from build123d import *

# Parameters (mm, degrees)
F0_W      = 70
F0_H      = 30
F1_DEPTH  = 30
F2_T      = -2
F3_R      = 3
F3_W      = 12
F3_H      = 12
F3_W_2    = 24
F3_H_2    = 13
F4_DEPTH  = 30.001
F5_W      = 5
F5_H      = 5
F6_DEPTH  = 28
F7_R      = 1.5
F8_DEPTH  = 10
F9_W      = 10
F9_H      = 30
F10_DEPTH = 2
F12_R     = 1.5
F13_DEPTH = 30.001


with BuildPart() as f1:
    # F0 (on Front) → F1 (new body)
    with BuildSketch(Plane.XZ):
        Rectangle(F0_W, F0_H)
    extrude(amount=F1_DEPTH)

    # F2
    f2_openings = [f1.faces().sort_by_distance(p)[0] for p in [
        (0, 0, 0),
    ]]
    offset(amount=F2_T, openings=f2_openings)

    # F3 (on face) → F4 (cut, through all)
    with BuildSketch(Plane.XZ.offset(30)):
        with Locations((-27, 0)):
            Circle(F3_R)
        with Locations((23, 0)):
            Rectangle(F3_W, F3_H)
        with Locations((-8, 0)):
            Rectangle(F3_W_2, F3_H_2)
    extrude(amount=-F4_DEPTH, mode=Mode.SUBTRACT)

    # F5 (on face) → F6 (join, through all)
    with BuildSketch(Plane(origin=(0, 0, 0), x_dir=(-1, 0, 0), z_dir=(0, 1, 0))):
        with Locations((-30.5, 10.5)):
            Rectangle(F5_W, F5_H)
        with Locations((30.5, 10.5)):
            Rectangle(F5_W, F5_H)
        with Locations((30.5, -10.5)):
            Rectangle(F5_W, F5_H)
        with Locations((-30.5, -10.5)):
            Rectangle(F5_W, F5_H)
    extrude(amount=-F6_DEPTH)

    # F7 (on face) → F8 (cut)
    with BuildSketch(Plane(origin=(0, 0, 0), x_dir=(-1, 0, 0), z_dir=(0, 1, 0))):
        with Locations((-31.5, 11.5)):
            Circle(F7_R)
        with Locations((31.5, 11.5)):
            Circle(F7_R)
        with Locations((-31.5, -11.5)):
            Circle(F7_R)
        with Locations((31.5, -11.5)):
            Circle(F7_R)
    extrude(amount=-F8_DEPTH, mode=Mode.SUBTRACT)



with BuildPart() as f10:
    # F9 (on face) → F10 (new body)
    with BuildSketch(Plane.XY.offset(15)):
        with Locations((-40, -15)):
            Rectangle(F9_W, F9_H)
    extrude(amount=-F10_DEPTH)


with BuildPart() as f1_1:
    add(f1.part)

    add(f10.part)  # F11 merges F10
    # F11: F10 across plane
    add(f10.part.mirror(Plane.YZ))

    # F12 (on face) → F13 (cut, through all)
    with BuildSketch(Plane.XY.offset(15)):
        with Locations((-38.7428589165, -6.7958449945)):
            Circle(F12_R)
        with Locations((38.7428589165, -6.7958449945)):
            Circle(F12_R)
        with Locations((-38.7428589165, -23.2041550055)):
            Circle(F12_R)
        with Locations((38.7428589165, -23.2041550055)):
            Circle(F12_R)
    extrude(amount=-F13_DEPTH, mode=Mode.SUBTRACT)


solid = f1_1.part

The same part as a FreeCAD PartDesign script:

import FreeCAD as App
import Part
import Sketcher

V = App.Vector
Q = App.Units.Quantity


def faces_at(feature, points):
    """Names of the faces that lie closest to the given points."""
    faces = feature.Shape.Faces
    near = lambda p: min(range(len(faces)), key=lambda i: faces[i].distToShape(Part.Vertex(*p))[0])
    return sorted({f"Face{near(p) + 1}" for p in points})

doc = App.newDocument("Part")
body = doc.addObject("PartDesign::Body", "Body")

sketch1 = body.newObject("Sketcher::SketchObject", "Sketch")
sketch1.AttachmentSupport = (doc.getObject("XZ_Plane"), [""])
sketch1.MapMode = "FlatFace"
sketch1.addGeometry(Part.LineSegment(V(-35, 15, 0), V(-35, -15, 0)), False)
sketch1.addGeometry(Part.LineSegment(V(-35, -15, 0), V(35, -15, 0)), False)
sketch1.addGeometry(Part.LineSegment(V(35, -15, 0), V(35, 15, 0)), False)
sketch1.addGeometry(Part.LineSegment(V(35, 15, 0), V(-35, 15, 0)), False)
sketch1.addConstraint(Sketcher.Constraint("Coincident", 0, 2, 1, 1))
sketch1.addConstraint(Sketcher.Constraint("Coincident", 1, 2, 2, 1))
sketch1.addConstraint(Sketcher.Constraint("Coincident", 2, 2, 3, 1))
sketch1.addConstraint(Sketcher.Constraint("Coincident", 3, 2, 0, 1))
sketch1.addConstraint(Sketcher.Constraint("Vertical", 0))
sketch1.addConstraint(Sketcher.Constraint("Horizontal", 1))
sketch1.addConstraint(Sketcher.Constraint("Vertical", 2))
sketch1.addConstraint(Sketcher.Constraint("Horizontal", 3))
sketch1.addConstraint(Sketcher.Constraint("Symmetric", 0, 2, 2, 2, -1, 1))
sketch1.addConstraint(Sketcher.Constraint("DistanceX", 1, 1, 1, 2, Q("70 mm")))
sketch1.addConstraint(Sketcher.Constraint("DistanceY", 0, 2, 0, 1, Q("30 mm")))
pad1 = body.newObject("PartDesign::Pad", "Pad")
pad1.Profile = sketch1
pad1.Length = 30
doc.recompute()

thickness = body.newObject("PartDesign::Thickness", "Thickness")
thickness.Base = (pad1, faces_at(pad1, [(0, 0, 0)]))
thickness.Value = 2
thickness.Reversed = True
thickness.Join = "Arc"

sketch2 = body.newObject("Sketcher::SketchObject", "Sketch001")
sketch2.AttachmentSupport = (doc.getObject("XZ_Plane"), [""])
sketch2.MapMode = "FlatFace"
sketch2.AttachmentOffset = App.Placement(V(0, 0, 30), App.Rotation())
sketch2.addGeometry(Part.Circle(V(-27, 0, 0), V(0, 0, 1), 3), False)
sketch2.addGeometry(Part.LineSegment(V(17, 6, 0), V(17, -6, 0)), False)
sketch2.addGeometry(Part.LineSegment(V(17, -6, 0), V(29, -6, 0)), False)
sketch2.addGeometry(Part.LineSegment(V(29, -6, 0), V(29, 6, 0)), False)
sketch2.addGeometry(Part.LineSegment(V(29, 6, 0), V(17, 6, 0)), False)
sketch2.addGeometry(Part.LineSegment(V(-20, 6.5, 0), V(-20, -6.5, 0)), False)
sketch2.addGeometry(Part.LineSegment(V(-20, -6.5, 0), V(4, -6.5, 0)), False)
sketch2.addGeometry(Part.LineSegment(V(4, -6.5, 0), V(4, 6.5, 0)), False)
sketch2.addGeometry(Part.LineSegment(V(4, 6.5, 0), V(-20, 6.5, 0)), False)
sketch2.addConstraint(Sketcher.Constraint("Coincident", 1, 2, 2, 1))
sketch2.addConstraint(Sketcher.Constraint("Coincident", 2, 2, 3, 1))
sketch2.addConstraint(Sketcher.Constraint("Coincident", 3, 2, 4, 1))
sketch2.addConstraint(Sketcher.Constraint("Coincident", 4, 2, 1, 1))
sketch2.addConstraint(Sketcher.Constraint("Coincident", 5, 2, 6, 1))
sketch2.addConstraint(Sketcher.Constraint("Coincident", 6, 2, 7, 1))
sketch2.addConstraint(Sketcher.Constraint("Coincident", 7, 2, 8, 1))
sketch2.addConstraint(Sketcher.Constraint("Coincident", 8, 2, 5, 1))
sketch2.addConstraint(Sketcher.Constraint("Vertical", 1))
sketch2.addConstraint(Sketcher.Constraint("Horizontal", 2))
sketch2.addConstraint(Sketcher.Constraint("Vertical", 3))
sketch2.addConstraint(Sketcher.Constraint("Horizontal", 4))
sketch2.addConstraint(Sketcher.Constraint("Vertical", 5))
sketch2.addConstraint(Sketcher.Constraint("Horizontal", 6))
sketch2.addConstraint(Sketcher.Constraint("Vertical", 7))
sketch2.addConstraint(Sketcher.Constraint("Horizontal", 8))
sketch2.addConstraint(Sketcher.Constraint("PointOnObject", 0, 3, -1))
sketch2.addConstraint(Sketcher.Constraint("Equal", 4, 1))
sketch2.addConstraint(Sketcher.Constraint("Diameter", 0, Q("6 mm")))
sketch2.addConstraint(Sketcher.Constraint("DistanceX", 2, 1, 2, 2, Q("12 mm")))
sketch2.addConstraint(Sketcher.Constraint("DistanceX", 6, 1, 6, 2, Q("24 mm")))
sketch2.addConstraint(Sketcher.Constraint("DistanceY", 5, 2, 5, 1, Q("13 mm")))
sketch2.addConstraint(Sketcher.Constraint("DistanceX", 0, 3, -1, 1, Q("27 mm")))
sketch2.addConstraint(Sketcher.Constraint("DistanceX", -1, 1, 1, 2, Q("17 mm")))
sketch2.addConstraint(Sketcher.Constraint("DistanceY", 1, 2, -1, 1, Q("6 mm")))
sketch2.addConstraint(Sketcher.Constraint("DistanceX", 5, 2, -1, 1, Q("20 mm")))
sketch2.addConstraint(Sketcher.Constraint("DistanceY", 5, 2, -1, 1, Q("6.5 mm")))
pocket1 = body.newObject("PartDesign::Pocket", "Pocket")
pocket1.Profile = sketch2
pocket1.Type = "ThroughAll"

sketch3 = body.newObject("Sketcher::SketchObject", "Sketch002")
sketch3.AttachmentSupport = (doc.getObject("XZ_Plane"), [""])
sketch3.MapMode = "FlatFace"
sketch3.addGeometry(Part.LineSegment(V(33, 13, 0), V(33, 8, 0)), False)
sketch3.addGeometry(Part.LineSegment(V(33, 8, 0), V(28, 8, 0)), False)
sketch3.addGeometry(Part.LineSegment(V(28, 8, 0), V(28, 13, 0)), False)
sketch3.addGeometry(Part.LineSegment(V(28, 13, 0), V(33, 13, 0)), False)
sketch3.addGeometry(Part.LineSegment(V(-28, 13, 0), V(-28, 8, 0)), False)
sketch3.addGeometry(Part.LineSegment(V(-28, 8, 0), V(-33, 8, 0)), False)
sketch3.addGeometry(Part.LineSegment(V(-33, 8, 0), V(-33, 13, 0)), False)
sketch3.addGeometry(Part.LineSegment(V(-33, 13, 0), V(-28, 13, 0)), False)
sketch3.addGeometry(Part.LineSegment(V(-28, -8, 0), V(-28, -13, 0)), False)
sketch3.addGeometry(Part.LineSegment(V(-28, -13, 0), V(-33, -13, 0)), False)
sketch3.addGeometry(Part.LineSegment(V(-33, -13, 0), V(-33, -8, 0)), False)
sketch3.addGeometry(Part.LineSegment(V(-33, -8, 0), V(-28, -8, 0)), False)
sketch3.addGeometry(Part.LineSegment(V(33, -8, 0), V(33, -13, 0)), False)
sketch3.addGeometry(Part.LineSegment(V(33, -13, 0), V(28, -13, 0)), False)
sketch3.addGeometry(Part.LineSegment(V(28, -13, 0), V(28, -8, 0)), False)
sketch3.addGeometry(Part.LineSegment(V(28, -8, 0), V(33, -8, 0)), False)
sketch3.addConstraint(Sketcher.Constraint("Coincident", 0, 2, 1, 1))
sketch3.addConstraint(Sketcher.Constraint("Coincident", 1, 2, 2, 1))
sketch3.addConstraint(Sketcher.Constraint("Coincident", 2, 2, 3, 1))
sketch3.addConstraint(Sketcher.Constraint("Coincident", 3, 2, 0, 1))
sketch3.addConstraint(Sketcher.Constraint("Coincident", 4, 2, 5, 1))
sketch3.addConstraint(Sketcher.Constraint("Coincident", 5, 2, 6, 1))
sketch3.addConstraint(Sketcher.Constraint("Coincident", 6, 2, 7, 1))
sketch3.addConstraint(Sketcher.Constraint("Coincident", 7, 2, 4, 1))
sketch3.addConstraint(Sketcher.Constraint("Coincident", 8, 2, 9, 1))
sketch3.addConstraint(Sketcher.Constraint("Coincident", 9, 2, 10, 1))
sketch3.addConstraint(Sketcher.Constraint("Coincident", 10, 2, 11, 1))
sketch3.addConstraint(Sketcher.Constraint("Coincident", 11, 2, 8, 1))
sketch3.addConstraint(Sketcher.Constraint("Coincident", 12, 2, 13, 1))
sketch3.addConstraint(Sketcher.Constraint("Coincident", 13, 2, 14, 1))
sketch3.addConstraint(Sketcher.Constraint("Coincident", 14, 2, 15, 1))
sketch3.addConstraint(Sketcher.Constraint("Coincident", 15, 2, 12, 1))
sketch3.addConstraint(Sketcher.Constraint("Vertical", 0))
sketch3.addConstraint(Sketcher.Constraint("Horizontal", 1))
sketch3.addConstraint(Sketcher.Constraint("Vertical", 2))
sketch3.addConstraint(Sketcher.Constraint("Horizontal", 3))
sketch3.addConstraint(Sketcher.Constraint("Vertical", 4))
sketch3.addConstraint(Sketcher.Constraint("Horizontal", 5))
sketch3.addConstraint(Sketcher.Constraint("Vertical", 6))
sketch3.addConstraint(Sketcher.Constraint("Horizontal", 7))
sketch3.addConstraint(Sketcher.Constraint("Vertical", 8))
sketch3.addConstraint(Sketcher.Constraint("Horizontal", 9))
sketch3.addConstraint(Sketcher.Constraint("Vertical", 10))
sketch3.addConstraint(Sketcher.Constraint("Horizontal", 11))
sketch3.addConstraint(Sketcher.Constraint("Vertical", 12))
sketch3.addConstraint(Sketcher.Constraint("Horizontal", 13))
sketch3.addConstraint(Sketcher.Constraint("Vertical", 14))
sketch3.addConstraint(Sketcher.Constraint("Horizontal", 15))
sketch3.addConstraint(Sketcher.Constraint("Symmetric", 2, 2, 8, 2, -1, 1))
sketch3.addConstraint(Sketcher.Constraint("Symmetric", 0, 2, 10, 2, -1, 1))
sketch3.addConstraint(Sketcher.Constraint("Symmetric", 6, 2, 12, 2, -1, 1))
sketch3.addConstraint(Sketcher.Constraint("Symmetric", 4, 2, 14, 2, -1, 1))
sketch3.addConstraint(Sketcher.Constraint("Symmetric", 1, 2, 4, 2, -2))
sketch3.addConstraint(Sketcher.Constraint("Symmetric", 3, 2, 6, 2, -2))
sketch3.addConstraint(Sketcher.Constraint("Equal", 15, 0))
sketch3.addConstraint(Sketcher.Constraint("DistanceX", 1, 2, 1, 1, Q("5 mm")))
sketch3.addConstraint(Sketcher.Constraint("DistanceX", -1, 1, 0, 2, Q("33 mm")))
sketch3.addConstraint(Sketcher.Constraint("DistanceY", -1, 1, 0, 2, Q("8 mm")))
pad2 = body.newObject("PartDesign::Pad", "Pad001")
pad2.Profile = sketch3
pad2.Length = 28

sketch4 = body.newObject("Sketcher::SketchObject", "Sketch003")
sketch4.AttachmentSupport = (doc.getObject("XZ_Plane"), [""])
sketch4.MapMode = "FlatFace"
sketch4.addGeometry(Part.Circle(V(31.5, 11.5, 0), V(0, 0, 1), 1.5), False)
sketch4.addGeometry(Part.Circle(V(-31.5, 11.5, 0), V(0, 0, 1), 1.5), False)
sketch4.addGeometry(Part.Circle(V(31.5, -11.5, 0), V(0, 0, 1), 1.5), False)
sketch4.addGeometry(Part.Circle(V(-31.5, -11.5, 0), V(0, 0, 1), 1.5), False)
sketch4.addConstraint(Sketcher.Constraint("Equal", 0, 1))
sketch4.addConstraint(Sketcher.Constraint("Equal", 1, 2))
sketch4.addConstraint(Sketcher.Constraint("Equal", 2, 3))
sketch4.addConstraint(Sketcher.Constraint("Symmetric", 1, 3, 2, 3, -1, 1))
sketch4.addConstraint(Sketcher.Constraint("Symmetric", 0, 3, 3, 3, -1, 1))
sketch4.addConstraint(Sketcher.Constraint("Symmetric", 0, 3, 1, 3, -2))
sketch4.addConstraint(Sketcher.Constraint("Diameter", 0, Q("3 mm")))
sketch4.addConstraint(Sketcher.Constraint("DistanceX", 1, 3, 0, 3, Q("63 mm")))
sketch4.addConstraint(Sketcher.Constraint("DistanceY", 2, 3, 0, 3, Q("23 mm")))
pocket2 = body.newObject("PartDesign::Pocket", "Pocket001")
pocket2.Profile = sketch4
pocket2.Length = 10
pocket2.Reversed = True
body2 = doc.addObject("PartDesign::Body", "Body001")

sketch5 = body2.newObject("Sketcher::SketchObject", "Sketch004")
sketch5.AttachmentSupport = (doc.getObject("XY_Plane001"), [""])
sketch5.MapMode = "FlatFace"
sketch5.AttachmentOffset = App.Placement(V(0, 0, 15), App.Rotation())
sketch5.addGeometry(Part.LineSegment(V(-45, 0, 0), V(-45, -30, 0)), False)
sketch5.addGeometry(Part.LineSegment(V(-45, -30, 0), V(-35, -30, 0)), False)
sketch5.addGeometry(Part.LineSegment(V(-35, -30, 0), V(-35, 0, 0)), False)
sketch5.addGeometry(Part.LineSegment(V(-35, 0, 0), V(-45, 0, 0)), False)
sketch5.addConstraint(Sketcher.Constraint("Coincident", 0, 2, 1, 1))
sketch5.addConstraint(Sketcher.Constraint("Coincident", 1, 2, 2, 1))
sketch5.addConstraint(Sketcher.Constraint("Coincident", 2, 2, 3, 1))
sketch5.addConstraint(Sketcher.Constraint("Coincident", 3, 2, 0, 1))
sketch5.addConstraint(Sketcher.Constraint("Vertical", 0))
sketch5.addConstraint(Sketcher.Constraint("Horizontal", 1))
sketch5.addConstraint(Sketcher.Constraint("Vertical", 2))
sketch5.addConstraint(Sketcher.Constraint("Horizontal", 3))
sketch5.addConstraint(Sketcher.Constraint("PointOnObject", 2, 2, -1))
sketch5.addConstraint(Sketcher.Constraint("DistanceX", 1, 1, 1, 2, Q("10 mm")))
sketch5.addConstraint(Sketcher.Constraint("DistanceY", 0, 2, 0, 1, Q("30 mm")))
sketch5.addConstraint(Sketcher.Constraint("DistanceX", 0, 2, -1, 1, Q("45 mm")))
pad3 = body2.newObject("PartDesign::Pad", "Pad002")
pad3.Profile = sketch5
pad3.Length = 2
pad3.Reversed = True
doc.recompute()

body3 = doc.addObject("PartDesign::Body", "Body002")
body3.BaseFeature = body2
boolean = body.newObject("PartDesign::Boolean", "Boolean")
boolean.Type = "Fuse"
boolean.addObjects([body3])
doc.recompute()

mirroring = doc.addObject("Part::Mirroring", "Mirroring")
mirroring.Source = body2
mirroring.Base = V(0, 0, 0)
mirroring.Normal = V(1, 0, 0)
body4 = doc.addObject("PartDesign::Body", "Body003")
body4.BaseFeature = mirroring
boolean2 = body.newObject("PartDesign::Boolean", "Boolean001")
boolean2.Type = "Fuse"
boolean2.addObjects([body4])
doc.recompute()

sketch6 = body.newObject("Sketcher::SketchObject", "Sketch005")
sketch6.AttachmentSupport = (doc.getObject("XY_Plane"), [""])
sketch6.MapMode = "FlatFace"
sketch6.AttachmentOffset = App.Placement(V(0, 0, 15), App.Rotation())
sketch6.addGeometry(Part.Circle(V(-38.7, -6.8, 0), V(0, 0, 1), 1.5), False)
sketch6.addGeometry(Part.Circle(V(38.7, -6.8, 0), V(0, 0, 1), 1.5), False)
sketch6.addGeometry(Part.Circle(V(-38.7, -23.2, 0), V(0, 0, 1), 1.5), False)
sketch6.addGeometry(Part.Circle(V(38.7, -23.2, 0), V(0, 0, 1), 1.5), False)
sketch6.addConstraint(Sketcher.Constraint("Equal", 0, 1))
sketch6.addConstraint(Sketcher.Constraint("Equal", 1, 2))
sketch6.addConstraint(Sketcher.Constraint("Equal", 2, 3))
sketch6.addConstraint(Sketcher.Constraint("Symmetric", 0, 3, 1, 3, -2))
sketch6.addConstraint(Sketcher.Constraint("Symmetric", 2, 3, 3, 3, -2))
sketch6.addConstraint(Sketcher.Constraint("Vertical", 0, 3, 2, 3))
sketch6.addConstraint(Sketcher.Constraint("Diameter", 0, Q("3 mm")))
sketch6.addConstraint(Sketcher.Constraint("DistanceX", 0, 3, -1, 1, Q("38.742859 mm")))
sketch6.addConstraint(Sketcher.Constraint("DistanceY", 2, 3, 0, 3, Q("16.40831 mm")))
sketch6.addConstraint(Sketcher.Constraint("DistanceY", 0, 3, -1, 1, Q("6.795845 mm")))
pocket3 = body.newObject("PartDesign::Pocket", "Pocket002")
pocket3.Profile = sketch6
pocket3.Type = "ThroughAll"
mirroring.Visibility = False

doc.recompute()
